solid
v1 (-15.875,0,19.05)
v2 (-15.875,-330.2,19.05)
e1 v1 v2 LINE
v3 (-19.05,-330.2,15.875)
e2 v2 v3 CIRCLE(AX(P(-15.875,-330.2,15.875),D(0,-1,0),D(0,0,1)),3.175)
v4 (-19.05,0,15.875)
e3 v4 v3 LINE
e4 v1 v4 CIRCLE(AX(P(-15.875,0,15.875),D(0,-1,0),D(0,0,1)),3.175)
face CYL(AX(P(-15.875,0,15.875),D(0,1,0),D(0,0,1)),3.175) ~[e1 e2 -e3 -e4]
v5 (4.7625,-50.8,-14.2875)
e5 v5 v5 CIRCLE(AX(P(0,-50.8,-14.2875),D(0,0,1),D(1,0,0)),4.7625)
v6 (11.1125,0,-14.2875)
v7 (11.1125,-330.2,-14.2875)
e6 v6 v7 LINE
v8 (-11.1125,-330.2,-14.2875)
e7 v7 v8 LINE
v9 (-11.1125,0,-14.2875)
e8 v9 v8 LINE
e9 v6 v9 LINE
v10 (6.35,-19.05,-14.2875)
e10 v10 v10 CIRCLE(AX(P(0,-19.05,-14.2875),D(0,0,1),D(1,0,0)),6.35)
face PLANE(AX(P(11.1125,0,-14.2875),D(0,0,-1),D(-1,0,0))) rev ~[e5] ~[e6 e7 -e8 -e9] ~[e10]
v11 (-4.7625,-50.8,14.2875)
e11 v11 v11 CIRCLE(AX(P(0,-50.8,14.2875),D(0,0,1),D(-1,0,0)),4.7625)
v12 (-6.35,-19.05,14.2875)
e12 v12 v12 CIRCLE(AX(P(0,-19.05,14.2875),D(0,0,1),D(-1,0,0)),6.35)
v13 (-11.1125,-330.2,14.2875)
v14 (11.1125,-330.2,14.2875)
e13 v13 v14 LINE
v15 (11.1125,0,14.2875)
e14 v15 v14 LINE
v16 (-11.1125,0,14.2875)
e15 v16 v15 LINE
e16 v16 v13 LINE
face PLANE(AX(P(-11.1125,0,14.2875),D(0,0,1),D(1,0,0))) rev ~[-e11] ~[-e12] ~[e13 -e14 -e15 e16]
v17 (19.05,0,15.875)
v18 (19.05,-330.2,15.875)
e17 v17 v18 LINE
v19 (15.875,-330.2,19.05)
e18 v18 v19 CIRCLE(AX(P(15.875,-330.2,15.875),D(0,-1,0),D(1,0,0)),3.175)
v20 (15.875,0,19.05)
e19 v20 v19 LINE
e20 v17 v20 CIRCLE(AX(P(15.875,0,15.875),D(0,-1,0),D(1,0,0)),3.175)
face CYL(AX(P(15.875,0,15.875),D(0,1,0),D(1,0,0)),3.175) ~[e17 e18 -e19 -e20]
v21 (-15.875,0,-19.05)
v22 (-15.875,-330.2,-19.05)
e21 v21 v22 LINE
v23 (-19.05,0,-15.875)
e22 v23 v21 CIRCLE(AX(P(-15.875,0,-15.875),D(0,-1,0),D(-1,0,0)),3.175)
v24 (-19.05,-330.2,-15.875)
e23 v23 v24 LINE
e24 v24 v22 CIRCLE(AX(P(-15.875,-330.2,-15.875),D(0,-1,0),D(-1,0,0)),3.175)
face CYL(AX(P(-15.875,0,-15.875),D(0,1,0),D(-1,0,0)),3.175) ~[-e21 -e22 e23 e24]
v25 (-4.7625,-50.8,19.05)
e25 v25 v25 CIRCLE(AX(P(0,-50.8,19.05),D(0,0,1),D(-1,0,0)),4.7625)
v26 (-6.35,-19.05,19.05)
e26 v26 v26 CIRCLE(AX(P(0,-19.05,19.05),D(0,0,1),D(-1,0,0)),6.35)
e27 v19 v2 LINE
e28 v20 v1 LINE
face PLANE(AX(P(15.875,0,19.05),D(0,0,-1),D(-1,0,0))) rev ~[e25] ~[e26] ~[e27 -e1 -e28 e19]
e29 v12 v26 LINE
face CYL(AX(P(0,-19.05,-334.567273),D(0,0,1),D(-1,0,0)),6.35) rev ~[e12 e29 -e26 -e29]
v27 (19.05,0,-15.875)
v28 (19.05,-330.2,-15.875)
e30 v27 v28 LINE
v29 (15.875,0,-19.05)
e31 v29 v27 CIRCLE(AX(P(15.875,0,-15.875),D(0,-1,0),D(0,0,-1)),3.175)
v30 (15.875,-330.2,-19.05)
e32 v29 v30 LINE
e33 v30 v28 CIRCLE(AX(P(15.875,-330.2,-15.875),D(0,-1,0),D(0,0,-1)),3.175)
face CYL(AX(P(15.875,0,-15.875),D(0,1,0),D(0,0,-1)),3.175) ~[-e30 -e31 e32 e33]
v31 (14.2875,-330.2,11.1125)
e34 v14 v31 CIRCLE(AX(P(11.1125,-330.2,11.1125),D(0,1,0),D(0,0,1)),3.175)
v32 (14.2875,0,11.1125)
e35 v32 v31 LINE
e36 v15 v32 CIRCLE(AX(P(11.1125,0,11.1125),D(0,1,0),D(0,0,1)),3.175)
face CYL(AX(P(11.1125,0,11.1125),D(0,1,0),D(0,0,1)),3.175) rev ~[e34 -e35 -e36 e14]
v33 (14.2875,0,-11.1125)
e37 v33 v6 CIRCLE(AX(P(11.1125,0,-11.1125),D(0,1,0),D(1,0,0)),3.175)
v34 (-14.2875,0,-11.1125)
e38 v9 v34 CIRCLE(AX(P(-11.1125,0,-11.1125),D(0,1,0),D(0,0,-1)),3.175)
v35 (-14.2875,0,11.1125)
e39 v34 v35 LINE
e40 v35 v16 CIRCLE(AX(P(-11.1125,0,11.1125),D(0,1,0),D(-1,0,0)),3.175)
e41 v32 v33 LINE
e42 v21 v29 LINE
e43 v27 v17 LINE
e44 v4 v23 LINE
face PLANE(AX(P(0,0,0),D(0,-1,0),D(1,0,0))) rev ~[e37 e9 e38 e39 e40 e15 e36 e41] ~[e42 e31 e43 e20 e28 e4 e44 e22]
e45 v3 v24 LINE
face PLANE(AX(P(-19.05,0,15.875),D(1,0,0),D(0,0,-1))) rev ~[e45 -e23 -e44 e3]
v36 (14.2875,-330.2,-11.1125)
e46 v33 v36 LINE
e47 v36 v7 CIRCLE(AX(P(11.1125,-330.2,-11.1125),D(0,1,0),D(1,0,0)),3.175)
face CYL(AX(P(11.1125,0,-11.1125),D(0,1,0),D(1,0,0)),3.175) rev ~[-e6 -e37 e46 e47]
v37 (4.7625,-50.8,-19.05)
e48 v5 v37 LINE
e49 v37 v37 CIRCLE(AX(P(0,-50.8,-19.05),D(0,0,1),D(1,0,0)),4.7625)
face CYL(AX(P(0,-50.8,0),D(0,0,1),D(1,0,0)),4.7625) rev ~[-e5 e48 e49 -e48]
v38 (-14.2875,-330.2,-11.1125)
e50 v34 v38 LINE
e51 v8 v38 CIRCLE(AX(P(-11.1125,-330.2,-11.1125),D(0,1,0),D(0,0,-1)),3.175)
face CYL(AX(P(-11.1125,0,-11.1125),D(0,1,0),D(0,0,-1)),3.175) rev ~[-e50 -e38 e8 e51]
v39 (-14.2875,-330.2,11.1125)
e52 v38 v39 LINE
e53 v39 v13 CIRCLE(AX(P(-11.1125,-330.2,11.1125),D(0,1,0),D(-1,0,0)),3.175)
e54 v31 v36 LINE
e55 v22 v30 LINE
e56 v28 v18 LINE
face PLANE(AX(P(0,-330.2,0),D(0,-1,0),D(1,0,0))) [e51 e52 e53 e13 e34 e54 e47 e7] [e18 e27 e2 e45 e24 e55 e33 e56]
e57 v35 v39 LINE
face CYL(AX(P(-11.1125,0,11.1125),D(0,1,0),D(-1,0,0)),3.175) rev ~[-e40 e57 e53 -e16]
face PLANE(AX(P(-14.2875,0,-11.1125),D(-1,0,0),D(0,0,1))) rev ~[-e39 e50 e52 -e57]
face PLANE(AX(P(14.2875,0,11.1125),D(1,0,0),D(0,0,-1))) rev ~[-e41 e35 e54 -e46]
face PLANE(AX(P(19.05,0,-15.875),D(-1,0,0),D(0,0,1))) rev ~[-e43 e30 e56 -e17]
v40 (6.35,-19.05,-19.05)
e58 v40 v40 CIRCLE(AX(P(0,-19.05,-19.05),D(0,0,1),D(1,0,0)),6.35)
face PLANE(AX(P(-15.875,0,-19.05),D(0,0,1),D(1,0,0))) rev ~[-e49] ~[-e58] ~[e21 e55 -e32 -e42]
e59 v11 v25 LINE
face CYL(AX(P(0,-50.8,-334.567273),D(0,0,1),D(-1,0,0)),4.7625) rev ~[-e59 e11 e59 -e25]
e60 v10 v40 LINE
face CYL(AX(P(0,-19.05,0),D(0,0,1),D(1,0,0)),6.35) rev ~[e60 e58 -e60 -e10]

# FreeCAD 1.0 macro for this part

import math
import FreeCAD as App
import Part
import Sketcher
from FreeCAD import Vector
Q = App.Units.Quantity

doc = App.newDocument("Part")
body = doc.addObject("PartDesign::Body", "Body")

# Sketch on XZ plane
sketch1 = body.newObject("Sketcher::SketchObject", "Sketch")
sketch1.AttachmentSupport = (doc.getObject("XZ_Plane"), [""])
sketch1.MapMode = "FlatFace"
sketch1.addGeometry([
    Part.LineSegment(Vector(-15.9, -19.1, 0), Vector(15.9, -19.1, 0)),  # 0
    Part.ArcOfCircle(Part.Circle(Vector(15.9, -15.9, 0), Vector(0, 0, 1), 3.2), math.radians(-90), math.radians(0)),  # 1
    Part.LineSegment(Vector(19.1, -15.9, 0), Vector(19.1, 15.9, 0)),  # 2
    Part.ArcOfCircle(Part.Circle(Vector(15.9, 15.9, 0), Vector(0, 0, 1), 3.2), math.radians(0), math.radians(90)),  # 3
    Part.LineSegment(Vector(15.9, 19.1, 0), Vector(-15.9, 19.1, 0)),  # 4
    Part.ArcOfCircle(Part.Circle(Vector(-15.9, 15.9, 0), Vector(0, 0, 1), 3.2), math.radians(90), math.radians(180)),  # 5
    Part.LineSegment(Vector(-19.1, 15.9, 0), Vector(-19.1, -15.9, 0)),  # 6
    Part.ArcOfCircle(Part.Circle(Vector(-15.9, -15.9, 0), Vector(0, 0, 1), 3.2), math.radians(180), math.radians(270)),  # 7
    Part.LineSegment(Vector(14.3, 11.1, 0), Vector(14.3, -11.1, 0)),  # 8
    Part.ArcOfCircle(Part.Circle(Vector(11.1, -11.1, 0), Vector(0, 0, 1), 3.2), math.radians(-90), math.radians(0)),  # 9
    Part.LineSegment(Vector(11.1, -14.3, 0), Vector(-11.1, -14.3, 0)),  # 10
    Part.ArcOfCircle(Part.Circle(Vector(-11.1, -11.1, 0), Vector(0, 0, 1), 3.2), math.radians(180), math.radians(270)),  # 11
    Part.LineSegment(Vector(-14.3, -11.1, 0), Vector(-14.3, 11.1, 0)),  # 12
    Part.ArcOfCircle(Part.Circle(Vector(-11.1, 11.1, 0), Vector(0, 0, 1), 3.2), math.radians(90), math.radians(180)),  # 13
    Part.LineSegment(Vector(-11.1, 14.3, 0), Vector(11.1, 14.3, 0)),  # 14
    Part.ArcOfCircle(Part.Circle(Vector(11.1, 11.1, 0), Vector(0, 0, 1), 3.2), math.radians(0), math.radians(90)),  # 15
], False)
sketch1.addConstraint([
    Sketcher.Constraint("Tangent", 0, 2, 1, 1),
    Sketcher.Constraint("Tangent", 1, 2, 2, 1),
    Sketcher.Constraint("Tangent", 2, 2, 3, 1),
    Sketcher.Constraint("Tangent", 3, 2, 4, 1),
    Sketcher.Constraint("Tangent", 4, 2, 5, 1),
    Sketcher.Constraint("Tangent", 5, 2, 6, 1),
    Sketcher.Constraint("Tangent", 6, 2, 7, 1),
    Sketcher.Constraint("Tangent", 7, 2, 0, 1),
    Sketcher.Constraint("Tangent", 8, 2, 9, 2),
    Sketcher.Constraint("Tangent", 9, 1, 10, 1),
    Sketcher.Constraint("Tangent", 10, 2, 11, 2),
    Sketcher.Constraint("Tangent", 11, 1, 12, 1),
    Sketcher.Constraint("Tangent", 12, 2, 13, 2),
    Sketcher.Constraint("Tangent", 13, 1, 14, 1),
    Sketcher.Constraint("Tangent", 14, 2, 15, 2),
    Sketcher.Constraint("Tangent", 15, 1, 8, 1),
    Sketcher.Constraint("Horizontal", 0),
    Sketcher.Constraint("Vertical", 2),
    Sketcher.Constraint("Horizontal", 4),
    Sketcher.Constraint("Vertical", 6),
    Sketcher.Constraint("Vertical", 8),
    Sketcher.Constraint("Horizontal", 10),
    Sketcher.Constraint("Vertical", 12),
    Sketcher.Constraint("Horizontal", 14),
    Sketcher.Constraint("Equal", 1, 3),
    Sketcher.Constraint("Equal", 3, 5),
    Sketcher.Constraint("Equal", 5, 7),
    Sketcher.Constraint("Equal", 7, 9),
    Sketcher.Constraint("Equal", 9, 11),
    Sketcher.Constraint("Equal", 11, 13),
    Sketcher.Constraint("Equal", 13, 15),
    Sketcher.Constraint("Symmetric", 1, 3, 5, 3, -1, 1),
    Sketcher.Constraint("Symmetric", 9, 3, 13, 3, -1, 1),
    Sketcher.Constraint("Equal", 4, 2),
    Sketcher.Constraint("Equal", 14, 8),
    Sketcher.Constraint("Radius", 1, Q("0.125 in")),
    Sketcher.Constraint("DistanceX", 0, 1, 0, 2, Q("1.25 in")),
    Sketcher.Constraint("DistanceX", 10, 2, 10, 1, Q("0.875 in")),
])
pad1 = body.newObject("PartDesign::Pad", "Pad")
pad1.Profile = sketch1
pad1.Length = Q("13 in")

# Sketch on XY plane
sketch2 = body.newObject("Sketcher::SketchObject", "Sketch001")
sketch2.AttachmentSupport = (doc.getObject("XY_Plane"), [""])
sketch2.MapMode = "FlatFace"
sketch2.addGeometry(Part.Circle(Vector(0, -19, 0), Vector(0, 0, 1), 6), False)
sketch2.addConstraint([
    Sketcher.Constraint("PointOnObject", 0, 3, -2),
    Sketcher.Constraint("Diameter", 0, Q("0.5 in")),
    Sketcher.Constraint("DistanceY", 0, 3, -1, 1, Q("0.75 in")),
])
pocket1 = body.newObject("PartDesign::Pocket", "Pocket")
pocket1.Profile = sketch2
pocket1.Type = "ThroughAll"

# Sketch on XY plane
sketch3 = body.newObject("Sketcher::SketchObject", "Sketch002")
sketch3.AttachmentSupport = (doc.getObject("XY_Plane"), [""])
sketch3.MapMode = "FlatFace"
sketch3.addGeometry(Part.Circle(Vector(0, -19, 0), Vector(0, 0, 1), 6), False)
sketch3.addConstraint([
    Sketcher.Constraint("PointOnObject", 0, 3, -2),
    Sketcher.Constraint("Diameter", 0, Q("0.5 in")),
    Sketcher.Constraint("DistanceY", 0, 3, -1, 1, Q("0.75 in")),
])
doc.recompute()
hole = body.newObject("PartDesign::Hole", "Hole")
hole.Profile = sketch3
hole.ThreadType = "None"
hole.Diameter = Q("0.5 in")
hole.DepthType = "ThroughAll"
hole.Reversed = True

# Sketch on XY plane
sketch4 = body.newObject("Sketcher::SketchObject", "Sketch003")
sketch4.AttachmentSupport = (doc.getObject("XY_Plane"), [""])
sketch4.MapMode = "FlatFace"
sketch4.addGeometry(Part.Circle(Vector(0, -50.8, 0), Vector(0, 0, 1), 4.8), False)
sketch4.addConstraint([
    Sketcher.Constraint("PointOnObject", 0, 3, -2),
    Sketcher.Constraint("Diameter", 0, Q("0.375 in")),
    Sketcher.Constraint("DistanceY", 0, 3, -1, 1, Q("2 in")),
])
pocket2 = body.newObject("PartDesign::Pocket", "Pocket001")
pocket2.Profile = sketch4
pocket2.Type = "ThroughAll"

# Sketch on XY plane
sketch5 = body.newObject("Sketcher::SketchObject", "Sketch004")
sketch5.AttachmentSupport = (doc.getObject("XY_Plane"), [""])
sketch5.MapMode = "FlatFace"
sketch5.addGeometry(Part.Circle(Vector(0, -50.8, 0), Vector(0, 0, 1), 4.8), False)
sketch5.addConstraint([
    Sketcher.Constraint("PointOnObject", 0, 3, -2),
    Sketcher.Constraint("Diameter", 0, Q("0.375 in")),
    Sketcher.Constraint("DistanceY", 0, 3, -1, 1, Q("2 in")),
])
doc.recompute()
hole2 = body.newObject("PartDesign::Hole", "Hole001")
hole2.Profile = sketch5
hole2.ThreadType = "None"
hole2.Diameter = Q("0.375 in")
hole2.DepthType = "ThroughAll"
hole2.Reversed = True

doc.recompute()
